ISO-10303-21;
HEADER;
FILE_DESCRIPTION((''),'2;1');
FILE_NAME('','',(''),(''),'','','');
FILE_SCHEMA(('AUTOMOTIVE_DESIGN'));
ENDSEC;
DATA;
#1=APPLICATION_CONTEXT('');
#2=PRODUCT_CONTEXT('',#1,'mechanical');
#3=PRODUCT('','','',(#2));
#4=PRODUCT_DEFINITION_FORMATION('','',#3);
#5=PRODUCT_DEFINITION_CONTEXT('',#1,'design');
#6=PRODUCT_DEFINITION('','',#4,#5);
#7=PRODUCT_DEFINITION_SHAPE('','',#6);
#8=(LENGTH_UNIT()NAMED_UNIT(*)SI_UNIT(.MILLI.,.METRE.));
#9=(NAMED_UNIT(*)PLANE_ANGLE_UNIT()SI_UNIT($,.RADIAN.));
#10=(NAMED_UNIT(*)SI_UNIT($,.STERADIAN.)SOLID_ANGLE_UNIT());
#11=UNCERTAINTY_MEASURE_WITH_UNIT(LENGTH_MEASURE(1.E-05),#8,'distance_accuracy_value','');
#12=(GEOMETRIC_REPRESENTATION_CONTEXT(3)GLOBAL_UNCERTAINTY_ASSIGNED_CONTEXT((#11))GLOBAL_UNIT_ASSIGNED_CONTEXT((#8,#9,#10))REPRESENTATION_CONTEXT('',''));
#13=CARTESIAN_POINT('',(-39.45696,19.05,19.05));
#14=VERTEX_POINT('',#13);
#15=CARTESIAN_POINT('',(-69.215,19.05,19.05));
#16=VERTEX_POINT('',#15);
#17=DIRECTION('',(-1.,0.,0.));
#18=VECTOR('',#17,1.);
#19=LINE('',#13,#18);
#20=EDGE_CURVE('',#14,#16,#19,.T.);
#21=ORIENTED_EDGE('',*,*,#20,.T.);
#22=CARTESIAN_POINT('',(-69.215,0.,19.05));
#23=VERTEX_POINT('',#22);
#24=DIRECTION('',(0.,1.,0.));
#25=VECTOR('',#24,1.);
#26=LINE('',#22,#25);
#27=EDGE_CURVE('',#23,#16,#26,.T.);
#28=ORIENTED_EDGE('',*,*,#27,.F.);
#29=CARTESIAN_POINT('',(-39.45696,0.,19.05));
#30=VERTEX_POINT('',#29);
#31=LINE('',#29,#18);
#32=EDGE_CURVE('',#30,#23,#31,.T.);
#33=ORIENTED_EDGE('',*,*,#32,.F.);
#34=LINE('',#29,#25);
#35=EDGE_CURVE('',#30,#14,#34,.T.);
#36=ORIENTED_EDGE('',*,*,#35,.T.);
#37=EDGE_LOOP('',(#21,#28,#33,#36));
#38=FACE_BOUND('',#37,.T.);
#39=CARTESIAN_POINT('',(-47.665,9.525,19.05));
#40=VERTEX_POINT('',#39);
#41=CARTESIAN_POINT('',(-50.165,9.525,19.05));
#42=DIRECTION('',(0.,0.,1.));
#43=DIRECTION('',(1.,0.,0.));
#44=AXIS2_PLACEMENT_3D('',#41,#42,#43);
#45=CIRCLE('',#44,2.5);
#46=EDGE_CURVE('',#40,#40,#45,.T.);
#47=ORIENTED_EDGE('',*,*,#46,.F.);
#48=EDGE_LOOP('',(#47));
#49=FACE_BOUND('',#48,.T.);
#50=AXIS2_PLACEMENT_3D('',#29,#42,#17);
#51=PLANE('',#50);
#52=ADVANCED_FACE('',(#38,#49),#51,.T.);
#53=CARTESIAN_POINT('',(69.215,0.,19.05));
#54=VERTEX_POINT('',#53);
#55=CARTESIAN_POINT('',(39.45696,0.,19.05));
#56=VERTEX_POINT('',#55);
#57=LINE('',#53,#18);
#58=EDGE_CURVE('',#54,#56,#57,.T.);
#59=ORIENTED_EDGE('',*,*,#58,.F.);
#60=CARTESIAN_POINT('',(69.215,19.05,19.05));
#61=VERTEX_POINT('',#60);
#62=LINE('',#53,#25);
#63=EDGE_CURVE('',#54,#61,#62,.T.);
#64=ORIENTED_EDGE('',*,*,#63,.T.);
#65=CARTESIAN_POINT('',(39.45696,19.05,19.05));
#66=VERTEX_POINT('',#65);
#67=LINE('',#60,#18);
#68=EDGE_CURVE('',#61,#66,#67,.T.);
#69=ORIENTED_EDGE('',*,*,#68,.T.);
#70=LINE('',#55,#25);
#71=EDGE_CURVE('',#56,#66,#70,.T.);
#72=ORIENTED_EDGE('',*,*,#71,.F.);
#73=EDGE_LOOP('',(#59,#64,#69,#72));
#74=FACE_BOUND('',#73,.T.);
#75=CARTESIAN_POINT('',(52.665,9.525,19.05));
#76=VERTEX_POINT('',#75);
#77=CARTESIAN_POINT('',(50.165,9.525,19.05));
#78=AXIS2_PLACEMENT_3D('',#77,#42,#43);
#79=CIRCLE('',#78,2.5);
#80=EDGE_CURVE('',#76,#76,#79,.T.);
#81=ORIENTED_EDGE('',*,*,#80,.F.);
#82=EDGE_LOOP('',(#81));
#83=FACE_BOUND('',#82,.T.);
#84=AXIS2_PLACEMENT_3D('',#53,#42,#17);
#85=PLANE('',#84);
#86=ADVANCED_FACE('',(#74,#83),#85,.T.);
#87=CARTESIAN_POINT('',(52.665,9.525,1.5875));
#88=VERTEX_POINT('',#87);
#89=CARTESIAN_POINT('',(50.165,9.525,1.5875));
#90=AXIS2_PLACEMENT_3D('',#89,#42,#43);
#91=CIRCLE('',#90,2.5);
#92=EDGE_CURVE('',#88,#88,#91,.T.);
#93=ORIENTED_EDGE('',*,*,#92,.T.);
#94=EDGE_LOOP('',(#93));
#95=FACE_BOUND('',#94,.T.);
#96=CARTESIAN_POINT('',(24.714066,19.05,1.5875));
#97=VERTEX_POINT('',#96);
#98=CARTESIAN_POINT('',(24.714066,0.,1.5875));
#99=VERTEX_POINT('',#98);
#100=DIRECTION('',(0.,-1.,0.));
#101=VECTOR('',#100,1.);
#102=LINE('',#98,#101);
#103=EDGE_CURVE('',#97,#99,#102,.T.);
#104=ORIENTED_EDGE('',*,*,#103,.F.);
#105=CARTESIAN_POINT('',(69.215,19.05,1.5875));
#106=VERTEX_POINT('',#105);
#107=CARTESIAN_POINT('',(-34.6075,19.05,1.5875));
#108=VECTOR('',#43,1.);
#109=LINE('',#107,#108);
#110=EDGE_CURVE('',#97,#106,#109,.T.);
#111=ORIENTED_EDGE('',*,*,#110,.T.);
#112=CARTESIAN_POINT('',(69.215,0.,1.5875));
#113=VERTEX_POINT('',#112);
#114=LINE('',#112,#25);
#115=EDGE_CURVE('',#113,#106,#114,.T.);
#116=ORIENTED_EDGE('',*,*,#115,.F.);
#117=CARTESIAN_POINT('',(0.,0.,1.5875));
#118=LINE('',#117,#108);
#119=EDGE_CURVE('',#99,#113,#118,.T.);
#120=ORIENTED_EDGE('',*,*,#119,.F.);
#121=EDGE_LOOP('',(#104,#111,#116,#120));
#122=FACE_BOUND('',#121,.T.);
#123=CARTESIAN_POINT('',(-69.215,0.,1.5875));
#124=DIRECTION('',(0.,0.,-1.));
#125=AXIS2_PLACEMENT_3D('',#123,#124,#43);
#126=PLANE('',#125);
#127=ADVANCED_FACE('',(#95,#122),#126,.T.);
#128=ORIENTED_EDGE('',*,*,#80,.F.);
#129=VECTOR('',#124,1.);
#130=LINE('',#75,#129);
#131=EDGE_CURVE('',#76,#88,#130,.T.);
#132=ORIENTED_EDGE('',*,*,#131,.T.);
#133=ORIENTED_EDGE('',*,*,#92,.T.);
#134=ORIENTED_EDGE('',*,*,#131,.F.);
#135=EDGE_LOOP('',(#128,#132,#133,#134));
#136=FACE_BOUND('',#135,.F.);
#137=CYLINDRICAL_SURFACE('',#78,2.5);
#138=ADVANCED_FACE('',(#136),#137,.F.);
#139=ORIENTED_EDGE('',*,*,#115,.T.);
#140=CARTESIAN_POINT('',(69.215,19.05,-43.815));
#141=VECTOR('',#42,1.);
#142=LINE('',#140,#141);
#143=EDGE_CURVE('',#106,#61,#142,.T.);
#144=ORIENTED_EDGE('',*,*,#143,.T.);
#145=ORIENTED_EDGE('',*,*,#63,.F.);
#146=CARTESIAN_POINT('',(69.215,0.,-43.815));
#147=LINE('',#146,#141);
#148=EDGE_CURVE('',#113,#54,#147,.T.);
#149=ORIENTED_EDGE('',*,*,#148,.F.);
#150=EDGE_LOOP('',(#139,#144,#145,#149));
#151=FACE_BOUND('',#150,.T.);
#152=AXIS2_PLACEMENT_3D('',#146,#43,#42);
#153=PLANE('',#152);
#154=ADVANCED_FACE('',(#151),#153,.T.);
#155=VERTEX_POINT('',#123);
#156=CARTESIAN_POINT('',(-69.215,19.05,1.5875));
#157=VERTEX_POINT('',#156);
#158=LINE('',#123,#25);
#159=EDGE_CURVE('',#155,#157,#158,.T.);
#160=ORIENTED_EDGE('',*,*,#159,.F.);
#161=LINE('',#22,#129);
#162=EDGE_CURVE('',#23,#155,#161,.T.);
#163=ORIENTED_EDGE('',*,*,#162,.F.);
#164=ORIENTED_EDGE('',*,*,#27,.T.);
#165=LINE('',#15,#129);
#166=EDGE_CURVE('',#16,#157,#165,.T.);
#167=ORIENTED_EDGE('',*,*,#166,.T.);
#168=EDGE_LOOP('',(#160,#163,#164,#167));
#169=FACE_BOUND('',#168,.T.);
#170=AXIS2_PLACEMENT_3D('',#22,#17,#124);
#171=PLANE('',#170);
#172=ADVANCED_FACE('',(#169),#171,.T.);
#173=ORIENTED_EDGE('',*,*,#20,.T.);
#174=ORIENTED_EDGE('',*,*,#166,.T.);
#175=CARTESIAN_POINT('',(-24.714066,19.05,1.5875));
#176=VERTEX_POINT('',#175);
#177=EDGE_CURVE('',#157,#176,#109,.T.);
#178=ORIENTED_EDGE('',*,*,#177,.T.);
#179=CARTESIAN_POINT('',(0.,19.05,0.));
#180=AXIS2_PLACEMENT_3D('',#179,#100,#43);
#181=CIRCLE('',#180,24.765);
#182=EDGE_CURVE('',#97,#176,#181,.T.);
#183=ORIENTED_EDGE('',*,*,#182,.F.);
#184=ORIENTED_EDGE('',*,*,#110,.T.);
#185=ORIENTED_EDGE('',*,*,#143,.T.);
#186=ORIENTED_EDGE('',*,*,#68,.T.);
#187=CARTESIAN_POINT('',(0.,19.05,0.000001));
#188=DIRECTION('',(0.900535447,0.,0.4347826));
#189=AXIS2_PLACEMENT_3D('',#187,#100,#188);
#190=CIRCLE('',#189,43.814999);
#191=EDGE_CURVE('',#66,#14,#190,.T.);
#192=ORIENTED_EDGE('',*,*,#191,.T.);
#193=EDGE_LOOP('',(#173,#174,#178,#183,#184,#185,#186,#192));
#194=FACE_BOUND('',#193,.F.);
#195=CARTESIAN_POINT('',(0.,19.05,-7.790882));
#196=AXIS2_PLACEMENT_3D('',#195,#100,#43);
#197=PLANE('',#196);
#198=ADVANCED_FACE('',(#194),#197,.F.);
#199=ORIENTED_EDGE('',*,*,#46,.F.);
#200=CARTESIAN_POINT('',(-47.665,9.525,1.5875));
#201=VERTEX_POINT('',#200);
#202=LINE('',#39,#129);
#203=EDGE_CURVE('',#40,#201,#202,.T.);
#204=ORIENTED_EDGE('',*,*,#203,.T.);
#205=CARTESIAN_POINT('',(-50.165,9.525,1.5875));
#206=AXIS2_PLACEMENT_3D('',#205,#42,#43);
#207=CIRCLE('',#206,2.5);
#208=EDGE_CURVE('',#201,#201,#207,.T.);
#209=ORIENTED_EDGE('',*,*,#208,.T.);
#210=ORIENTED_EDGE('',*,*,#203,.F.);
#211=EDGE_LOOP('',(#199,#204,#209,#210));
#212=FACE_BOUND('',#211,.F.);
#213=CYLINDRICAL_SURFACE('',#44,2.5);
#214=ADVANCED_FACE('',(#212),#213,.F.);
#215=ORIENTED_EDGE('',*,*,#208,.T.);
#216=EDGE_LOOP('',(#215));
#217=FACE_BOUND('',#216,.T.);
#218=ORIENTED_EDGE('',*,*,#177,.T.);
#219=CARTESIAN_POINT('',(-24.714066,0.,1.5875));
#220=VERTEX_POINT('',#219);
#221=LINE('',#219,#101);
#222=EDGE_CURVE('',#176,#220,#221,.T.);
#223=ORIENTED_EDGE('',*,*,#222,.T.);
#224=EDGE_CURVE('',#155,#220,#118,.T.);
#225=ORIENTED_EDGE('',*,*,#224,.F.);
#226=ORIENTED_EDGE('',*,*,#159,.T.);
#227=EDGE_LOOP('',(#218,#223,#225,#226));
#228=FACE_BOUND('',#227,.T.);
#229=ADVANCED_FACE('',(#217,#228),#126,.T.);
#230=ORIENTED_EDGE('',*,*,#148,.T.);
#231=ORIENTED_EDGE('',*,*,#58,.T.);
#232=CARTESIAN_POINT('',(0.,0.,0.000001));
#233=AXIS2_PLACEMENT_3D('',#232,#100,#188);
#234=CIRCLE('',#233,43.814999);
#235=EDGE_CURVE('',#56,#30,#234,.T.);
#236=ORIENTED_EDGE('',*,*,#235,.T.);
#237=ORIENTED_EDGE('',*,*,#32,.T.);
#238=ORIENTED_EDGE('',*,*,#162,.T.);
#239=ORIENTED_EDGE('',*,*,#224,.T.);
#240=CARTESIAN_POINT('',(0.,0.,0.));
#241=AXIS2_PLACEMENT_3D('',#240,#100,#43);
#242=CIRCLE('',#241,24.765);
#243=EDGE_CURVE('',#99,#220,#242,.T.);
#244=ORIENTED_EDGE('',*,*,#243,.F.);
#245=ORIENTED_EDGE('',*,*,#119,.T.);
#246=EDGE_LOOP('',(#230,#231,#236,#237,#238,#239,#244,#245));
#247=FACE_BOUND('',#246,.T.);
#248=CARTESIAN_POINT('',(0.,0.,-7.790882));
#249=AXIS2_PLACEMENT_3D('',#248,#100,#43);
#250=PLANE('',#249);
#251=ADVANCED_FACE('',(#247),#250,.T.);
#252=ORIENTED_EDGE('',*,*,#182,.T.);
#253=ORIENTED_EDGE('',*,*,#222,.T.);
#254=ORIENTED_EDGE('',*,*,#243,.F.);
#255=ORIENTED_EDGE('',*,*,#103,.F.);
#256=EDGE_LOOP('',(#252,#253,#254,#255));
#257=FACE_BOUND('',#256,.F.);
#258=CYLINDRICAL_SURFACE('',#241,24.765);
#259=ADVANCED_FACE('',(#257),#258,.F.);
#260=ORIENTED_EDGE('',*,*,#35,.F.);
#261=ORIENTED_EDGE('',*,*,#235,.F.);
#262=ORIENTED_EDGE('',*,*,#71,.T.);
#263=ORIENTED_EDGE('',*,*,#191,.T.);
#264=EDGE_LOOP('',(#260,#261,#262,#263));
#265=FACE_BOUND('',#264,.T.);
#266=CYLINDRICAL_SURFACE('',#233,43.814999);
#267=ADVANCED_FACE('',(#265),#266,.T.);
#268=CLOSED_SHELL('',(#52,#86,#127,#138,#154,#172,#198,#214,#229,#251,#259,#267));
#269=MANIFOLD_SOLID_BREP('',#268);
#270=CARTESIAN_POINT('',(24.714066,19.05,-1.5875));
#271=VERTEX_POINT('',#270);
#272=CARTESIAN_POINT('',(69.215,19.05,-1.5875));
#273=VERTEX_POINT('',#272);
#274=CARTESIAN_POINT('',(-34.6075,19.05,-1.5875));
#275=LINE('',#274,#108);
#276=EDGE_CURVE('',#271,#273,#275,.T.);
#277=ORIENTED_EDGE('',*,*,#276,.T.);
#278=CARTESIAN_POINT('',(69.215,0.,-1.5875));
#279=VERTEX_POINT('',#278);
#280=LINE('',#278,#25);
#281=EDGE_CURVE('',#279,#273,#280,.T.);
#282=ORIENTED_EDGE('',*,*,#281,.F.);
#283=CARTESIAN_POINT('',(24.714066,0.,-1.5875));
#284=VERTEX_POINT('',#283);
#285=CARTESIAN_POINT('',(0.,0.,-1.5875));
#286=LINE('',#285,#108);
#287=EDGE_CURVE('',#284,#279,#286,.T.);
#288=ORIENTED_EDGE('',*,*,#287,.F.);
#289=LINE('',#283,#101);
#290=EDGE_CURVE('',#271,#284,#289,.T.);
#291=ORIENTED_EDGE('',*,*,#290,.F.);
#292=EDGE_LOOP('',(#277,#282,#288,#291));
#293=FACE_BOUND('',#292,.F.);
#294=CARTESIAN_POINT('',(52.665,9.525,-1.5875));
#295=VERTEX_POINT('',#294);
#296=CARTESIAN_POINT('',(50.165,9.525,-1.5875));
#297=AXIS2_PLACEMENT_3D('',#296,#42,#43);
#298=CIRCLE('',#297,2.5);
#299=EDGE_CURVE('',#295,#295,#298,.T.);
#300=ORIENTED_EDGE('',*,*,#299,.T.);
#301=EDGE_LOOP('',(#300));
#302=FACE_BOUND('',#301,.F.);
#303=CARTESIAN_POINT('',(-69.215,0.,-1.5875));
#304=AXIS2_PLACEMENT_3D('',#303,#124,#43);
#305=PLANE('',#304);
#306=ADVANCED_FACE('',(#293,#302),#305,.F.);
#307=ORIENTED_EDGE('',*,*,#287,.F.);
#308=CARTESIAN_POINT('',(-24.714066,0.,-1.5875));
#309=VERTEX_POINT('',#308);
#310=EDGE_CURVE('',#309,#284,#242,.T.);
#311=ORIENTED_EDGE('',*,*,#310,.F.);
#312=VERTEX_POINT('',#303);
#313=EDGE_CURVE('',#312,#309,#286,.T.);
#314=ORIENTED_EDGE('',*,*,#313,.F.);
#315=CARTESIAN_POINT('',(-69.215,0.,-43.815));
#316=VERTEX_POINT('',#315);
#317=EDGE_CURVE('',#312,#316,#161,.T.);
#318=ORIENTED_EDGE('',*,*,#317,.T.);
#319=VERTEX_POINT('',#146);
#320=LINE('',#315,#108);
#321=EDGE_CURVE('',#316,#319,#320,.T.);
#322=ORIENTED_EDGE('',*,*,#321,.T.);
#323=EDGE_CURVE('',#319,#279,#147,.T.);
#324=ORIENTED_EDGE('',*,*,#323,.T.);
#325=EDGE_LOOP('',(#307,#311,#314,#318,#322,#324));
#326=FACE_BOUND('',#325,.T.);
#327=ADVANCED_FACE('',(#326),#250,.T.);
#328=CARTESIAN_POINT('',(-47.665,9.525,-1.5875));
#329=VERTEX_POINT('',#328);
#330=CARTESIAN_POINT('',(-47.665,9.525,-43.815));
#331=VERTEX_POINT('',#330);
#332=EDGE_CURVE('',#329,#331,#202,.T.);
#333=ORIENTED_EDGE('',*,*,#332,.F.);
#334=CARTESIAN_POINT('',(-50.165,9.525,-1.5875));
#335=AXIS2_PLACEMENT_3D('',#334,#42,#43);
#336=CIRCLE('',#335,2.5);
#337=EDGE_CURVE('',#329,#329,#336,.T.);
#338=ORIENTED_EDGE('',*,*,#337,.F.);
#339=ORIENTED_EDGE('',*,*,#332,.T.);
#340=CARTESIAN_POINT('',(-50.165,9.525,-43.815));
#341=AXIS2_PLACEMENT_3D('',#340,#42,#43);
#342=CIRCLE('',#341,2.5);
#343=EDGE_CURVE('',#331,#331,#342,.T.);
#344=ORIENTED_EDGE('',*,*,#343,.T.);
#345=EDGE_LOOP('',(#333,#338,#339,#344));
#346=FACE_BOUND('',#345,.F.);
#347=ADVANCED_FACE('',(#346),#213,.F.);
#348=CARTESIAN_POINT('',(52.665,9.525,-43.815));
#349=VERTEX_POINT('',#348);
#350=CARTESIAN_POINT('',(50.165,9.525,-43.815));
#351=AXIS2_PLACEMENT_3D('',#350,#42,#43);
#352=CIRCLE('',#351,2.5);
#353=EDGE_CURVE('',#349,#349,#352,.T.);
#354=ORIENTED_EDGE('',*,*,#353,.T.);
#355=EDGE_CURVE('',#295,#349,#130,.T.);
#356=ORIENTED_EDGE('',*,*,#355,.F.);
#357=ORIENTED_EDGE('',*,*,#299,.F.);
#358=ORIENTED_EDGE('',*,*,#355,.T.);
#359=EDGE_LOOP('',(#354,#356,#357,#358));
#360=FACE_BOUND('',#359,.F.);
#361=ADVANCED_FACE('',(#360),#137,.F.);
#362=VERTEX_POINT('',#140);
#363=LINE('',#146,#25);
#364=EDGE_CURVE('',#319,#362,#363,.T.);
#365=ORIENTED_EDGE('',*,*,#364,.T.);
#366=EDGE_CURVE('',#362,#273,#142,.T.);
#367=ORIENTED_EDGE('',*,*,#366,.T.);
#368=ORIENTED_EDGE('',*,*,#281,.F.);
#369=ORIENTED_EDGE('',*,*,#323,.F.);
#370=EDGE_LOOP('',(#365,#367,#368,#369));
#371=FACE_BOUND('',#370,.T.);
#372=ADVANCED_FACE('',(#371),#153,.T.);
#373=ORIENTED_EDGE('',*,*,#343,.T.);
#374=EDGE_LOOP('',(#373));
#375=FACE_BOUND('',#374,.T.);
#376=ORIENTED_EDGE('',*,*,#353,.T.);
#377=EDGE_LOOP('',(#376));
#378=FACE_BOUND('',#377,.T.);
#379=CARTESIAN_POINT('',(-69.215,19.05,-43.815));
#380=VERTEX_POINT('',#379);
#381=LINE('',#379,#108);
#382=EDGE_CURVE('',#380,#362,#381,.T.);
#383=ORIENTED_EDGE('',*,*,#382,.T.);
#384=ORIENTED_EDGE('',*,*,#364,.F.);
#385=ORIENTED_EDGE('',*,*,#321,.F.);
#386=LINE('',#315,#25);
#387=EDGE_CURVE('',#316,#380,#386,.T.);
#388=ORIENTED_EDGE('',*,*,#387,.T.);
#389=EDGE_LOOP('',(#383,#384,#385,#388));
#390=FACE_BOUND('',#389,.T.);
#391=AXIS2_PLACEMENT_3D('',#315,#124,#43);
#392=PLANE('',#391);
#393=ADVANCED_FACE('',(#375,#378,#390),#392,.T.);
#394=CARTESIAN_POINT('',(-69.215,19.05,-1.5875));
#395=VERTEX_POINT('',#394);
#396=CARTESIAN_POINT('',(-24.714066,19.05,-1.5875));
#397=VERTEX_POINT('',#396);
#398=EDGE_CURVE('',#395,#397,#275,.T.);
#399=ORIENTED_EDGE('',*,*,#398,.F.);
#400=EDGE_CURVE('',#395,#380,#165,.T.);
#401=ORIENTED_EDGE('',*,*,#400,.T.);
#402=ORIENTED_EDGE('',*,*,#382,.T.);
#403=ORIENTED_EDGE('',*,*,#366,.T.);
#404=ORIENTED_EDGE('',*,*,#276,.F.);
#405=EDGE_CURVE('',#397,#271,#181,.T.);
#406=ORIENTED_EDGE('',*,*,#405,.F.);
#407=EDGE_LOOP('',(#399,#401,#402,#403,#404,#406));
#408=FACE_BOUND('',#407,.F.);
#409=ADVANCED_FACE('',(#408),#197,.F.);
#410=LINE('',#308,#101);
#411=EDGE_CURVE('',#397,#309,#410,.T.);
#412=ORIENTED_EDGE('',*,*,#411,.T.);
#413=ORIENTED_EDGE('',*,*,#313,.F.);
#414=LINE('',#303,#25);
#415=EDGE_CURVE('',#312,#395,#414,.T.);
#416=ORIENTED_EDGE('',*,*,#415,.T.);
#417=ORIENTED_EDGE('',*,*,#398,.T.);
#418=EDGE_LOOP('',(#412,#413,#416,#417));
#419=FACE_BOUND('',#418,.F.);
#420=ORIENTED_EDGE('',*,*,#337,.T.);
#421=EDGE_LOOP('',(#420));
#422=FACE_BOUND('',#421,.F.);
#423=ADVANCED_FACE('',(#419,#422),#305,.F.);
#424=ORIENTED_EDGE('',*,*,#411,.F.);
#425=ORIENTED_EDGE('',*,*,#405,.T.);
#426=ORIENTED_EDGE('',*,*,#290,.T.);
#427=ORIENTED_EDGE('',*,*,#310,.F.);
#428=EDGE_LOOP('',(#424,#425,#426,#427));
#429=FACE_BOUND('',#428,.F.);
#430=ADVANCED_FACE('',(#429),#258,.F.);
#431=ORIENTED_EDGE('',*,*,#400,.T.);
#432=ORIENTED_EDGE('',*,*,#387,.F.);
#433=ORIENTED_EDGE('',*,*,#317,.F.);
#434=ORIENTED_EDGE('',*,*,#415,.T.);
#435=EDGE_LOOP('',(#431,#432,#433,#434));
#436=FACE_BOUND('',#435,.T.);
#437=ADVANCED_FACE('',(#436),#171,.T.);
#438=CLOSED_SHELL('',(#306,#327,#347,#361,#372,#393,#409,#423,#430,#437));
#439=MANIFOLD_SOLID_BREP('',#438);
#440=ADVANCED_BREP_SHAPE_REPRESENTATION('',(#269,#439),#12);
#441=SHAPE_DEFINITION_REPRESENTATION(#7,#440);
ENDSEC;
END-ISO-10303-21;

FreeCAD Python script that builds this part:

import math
import FreeCAD as App
import Part
import Sketcher

V = App.Vector
Q = App.Units.Quantity


def add_polygon(sketch, points):
    """Adds a closed chain of lines whose ends are joined by coincident constraints."""
    first, n = sketch.GeometryCount, len(points)
    for a, b in zip(points, points[1:] + points[:1]):
        sketch.addGeometry(Part.LineSegment(App.Vector(*a, 0), App.Vector(*b, 0)), False)
    for i in range(n):
        sketch.addConstraint(Sketcher.Constraint("Coincident", first + i, 2, first + (i + 1) % n, 1))

doc = App.newDocument("Part")
params = doc.addObject("Spreadsheet::Sheet", "Params")
for row, (alias, value) in enumerate([
    ("sketch1_diameter", "1.95 in"),
    ("sketch1_radius", "1.725 in"),
    ("sketch1_width", "5.45 in"),
    ("sketch1_height", "2.475 in"),
    ("pad1_length", "0.75 in"),
    ("sketch2_width", "5.45 in"),
    ("sketch2_height", "0.125 in"),
    ("pocket1_length", "1 in"),
    ("pocket2_length", "5 in"),
], start=1):
    params.set(f"A{row}", alias)
    params.set(f"B{row}", "=" + value)
    params.setAlias(f"B{row}", alias)

body = doc.addObject("PartDesign::Body", "Body")
body.AllowCompound = True

sketch1 = body.newObject("Sketcher::SketchObject", "Sketch")
sketch1.AttachmentSupport = (doc.getObject("XZ_Plane"), [""])
sketch1.MapMode = "FlatFace"
sketch1.addGeometry(Part.LineSegment(V(69.215, 19.05, 0), V(39.45696, 19.05, 0)), False)
sketch1.addGeometry(Part.ArcOfCircle(Part.Circle(V(0, 0.000001, 0), V(0, 0, 1), 43.814999), math.radians(25.771461), math.radians(154.228539)), False)
sketch1.addGeometry(Part.LineSegment(V(-39.45696, 19.05, 0), V(-69.215, 19.05, 0)), False)
sketch1.addGeometry(Part.LineSegment(V(-69.215, 19.05, 0), V(-69.215, -43.815, 0)), False)
sketch1.addGeometry(Part.LineSegment(V(-69.215, -43.815, 0), V(69.215, -43.815, 0)), False)
sketch1.addGeometry(Part.LineSegment(V(69.215, -43.815, 0), V(69.215, 19.05, 0)), False)
sketch1.addGeometry(Part.Circle(V(0, 0, 0), V(0, 0, 1), 24.765), False)
sketch1.addConstraint(Sketcher.Constraint("Coincident", 0, 2, 1, 1))
sketch1.addConstraint(Sketcher.Constraint("Coincident", 1, 2, 2, 1))
sketch1.addConstraint(Sketcher.Constraint("Coincident", 2, 2, 3, 1))
sketch1.addConstraint(Sketcher.Constraint("Coincident", 3, 2, 4, 1))
sketch1.addConstraint(Sketcher.Constraint("Coincident", 4, 2, 5, 1))
sketch1.addConstraint(Sketcher.Constraint("Coincident", 5, 2, 0, 1))
sketch1.addConstraint(Sketcher.Constraint("Horizontal", 0))
sketch1.addConstraint(Sketcher.Constraint("Horizontal", 2))
sketch1.addConstraint(Sketcher.Constraint("Vertical", 3))
sketch1.addConstraint(Sketcher.Constraint("Horizontal", 4))
sketch1.addConstraint(Sketcher.Constraint("Vertical", 5))
sketch1.addConstraint(Sketcher.Constraint("Coincident", 1, 3, -1, 1))
sketch1.addConstraint(Sketcher.Constraint("Coincident", 6, 3, -1, 1))
sketch1.addConstraint(Sketcher.Constraint("Symmetric", 2, 2, 5, 2, -2))
sketch1.addConstraint(Sketcher.Constraint("Diameter", 6, Q("1.95 in")))
sketch1.addConstraint(Sketcher.Constraint("Radius", 1, Q("1.725 in")))
sketch1.addConstraint(Sketcher.Constraint("DistanceX", 4, 1, 4, 2, Q("5.45 in")))
sketch1.addConstraint(Sketcher.Constraint("DistanceY", 3, 2, 3, 1, Q("2.475 in")))
sketch1.addConstraint(Sketcher.Constraint("DistanceY", -1, 1, 0, 2, Q("0.75 in")))
sketch1.setExpression("Constraints[14]", "Params.sketch1_diameter")
sketch1.setExpression("Constraints[15]", "Params.sketch1_radius")
sketch1.setExpression("Constraints[16]", "Params.sketch1_width")
sketch1.setExpression("Constraints[17]", "Params.sketch1_height")
pad1 = body.newObject("PartDesign::Pad", "Pad")
pad1.Profile = sketch1
pad1.setExpression("Length", "Params.pad1_length")
pad1.Reversed = True

sketch2 = body.newObject("Sketcher::SketchObject", "Sketch001")
sketch2.AttachmentSupport = (doc.getObject("XZ_Plane"), [""])
sketch2.MapMode = "FlatFace"
add_polygon(sketch2, [(-69.215, 1.5875), (-69.215, -1.5875), (69.215, -1.5875), (69.215, 1.5875)])
sketch2.addConstraint(Sketcher.Constraint("Vertical", 0))
sketch2.addConstraint(Sketcher.Constraint("Horizontal", 1))
sketch2.addConstraint(Sketcher.Constraint("Vertical", 2))
sketch2.addConstraint(Sketcher.Constraint("Horizontal", 3))
sketch2.addConstraint(Sketcher.Constraint("Symmetric", 0, 2, 2, 2, -1, 1))
sketch2.addConstraint(Sketcher.Constraint("DistanceX", 1, 1, 1, 2, Q("5.45 in")))
sketch2.addConstraint(Sketcher.Constraint("DistanceY", 0, 2, 0, 1, Q("0.125 in")))
sketch2.setExpression("Constraints[9]", "Params.sketch2_width")
sketch2.setExpression("Constraints[10]", "Params.sketch2_height")
pocket1 = body.newObject("PartDesign::Pocket", "Pocket")
pocket1.Profile = sketch2
pocket1.setExpression("Length", "Params.pocket1_length")

sketch3 = body.newObject("Sketcher::SketchObject", "Sketch002")
sketch3.AttachmentSupport = (doc.getObject("XY_Plane"), [""])
sketch3.MapMode = "FlatFace"
sketch3.AttachmentOffset = App.Placement(V(0, 0, 0.75 * 25.4), App.Rotation())
sketch3.addGeometry(Part.Circle(V(-50.165, 9.525, 0), V(0, 0, 1), 2.5), False)
sketch3.addGeometry(Part.Circle(V(50.165, 9.525, 0), V(0, 0, 1), 2.5), False)
sketch3.addConstraint(Sketcher.Constraint("Equal", 0, 1))
sketch3.addConstraint(Sketcher.Constraint("Symmetric", 0, 3, 1, 3, -2))
sketch3.addConstraint(Sketcher.Constraint("Diameter", 0, Q("5 mm")))
sketch3.addConstraint(Sketcher.Constraint("DistanceX", 0, 3, 1, 3, Q("3.95 in")))
sketch3.addConstraint(Sketcher.Constraint("DistanceY", -1, 1, 0, 3, Q("0.375 in")))
pocket2 = body.newObject("PartDesign::Pocket", "Pocket001")
pocket2.Profile = sketch3
pocket2.setExpression("Length", "Params.pocket2_length")

doc.recompute()
